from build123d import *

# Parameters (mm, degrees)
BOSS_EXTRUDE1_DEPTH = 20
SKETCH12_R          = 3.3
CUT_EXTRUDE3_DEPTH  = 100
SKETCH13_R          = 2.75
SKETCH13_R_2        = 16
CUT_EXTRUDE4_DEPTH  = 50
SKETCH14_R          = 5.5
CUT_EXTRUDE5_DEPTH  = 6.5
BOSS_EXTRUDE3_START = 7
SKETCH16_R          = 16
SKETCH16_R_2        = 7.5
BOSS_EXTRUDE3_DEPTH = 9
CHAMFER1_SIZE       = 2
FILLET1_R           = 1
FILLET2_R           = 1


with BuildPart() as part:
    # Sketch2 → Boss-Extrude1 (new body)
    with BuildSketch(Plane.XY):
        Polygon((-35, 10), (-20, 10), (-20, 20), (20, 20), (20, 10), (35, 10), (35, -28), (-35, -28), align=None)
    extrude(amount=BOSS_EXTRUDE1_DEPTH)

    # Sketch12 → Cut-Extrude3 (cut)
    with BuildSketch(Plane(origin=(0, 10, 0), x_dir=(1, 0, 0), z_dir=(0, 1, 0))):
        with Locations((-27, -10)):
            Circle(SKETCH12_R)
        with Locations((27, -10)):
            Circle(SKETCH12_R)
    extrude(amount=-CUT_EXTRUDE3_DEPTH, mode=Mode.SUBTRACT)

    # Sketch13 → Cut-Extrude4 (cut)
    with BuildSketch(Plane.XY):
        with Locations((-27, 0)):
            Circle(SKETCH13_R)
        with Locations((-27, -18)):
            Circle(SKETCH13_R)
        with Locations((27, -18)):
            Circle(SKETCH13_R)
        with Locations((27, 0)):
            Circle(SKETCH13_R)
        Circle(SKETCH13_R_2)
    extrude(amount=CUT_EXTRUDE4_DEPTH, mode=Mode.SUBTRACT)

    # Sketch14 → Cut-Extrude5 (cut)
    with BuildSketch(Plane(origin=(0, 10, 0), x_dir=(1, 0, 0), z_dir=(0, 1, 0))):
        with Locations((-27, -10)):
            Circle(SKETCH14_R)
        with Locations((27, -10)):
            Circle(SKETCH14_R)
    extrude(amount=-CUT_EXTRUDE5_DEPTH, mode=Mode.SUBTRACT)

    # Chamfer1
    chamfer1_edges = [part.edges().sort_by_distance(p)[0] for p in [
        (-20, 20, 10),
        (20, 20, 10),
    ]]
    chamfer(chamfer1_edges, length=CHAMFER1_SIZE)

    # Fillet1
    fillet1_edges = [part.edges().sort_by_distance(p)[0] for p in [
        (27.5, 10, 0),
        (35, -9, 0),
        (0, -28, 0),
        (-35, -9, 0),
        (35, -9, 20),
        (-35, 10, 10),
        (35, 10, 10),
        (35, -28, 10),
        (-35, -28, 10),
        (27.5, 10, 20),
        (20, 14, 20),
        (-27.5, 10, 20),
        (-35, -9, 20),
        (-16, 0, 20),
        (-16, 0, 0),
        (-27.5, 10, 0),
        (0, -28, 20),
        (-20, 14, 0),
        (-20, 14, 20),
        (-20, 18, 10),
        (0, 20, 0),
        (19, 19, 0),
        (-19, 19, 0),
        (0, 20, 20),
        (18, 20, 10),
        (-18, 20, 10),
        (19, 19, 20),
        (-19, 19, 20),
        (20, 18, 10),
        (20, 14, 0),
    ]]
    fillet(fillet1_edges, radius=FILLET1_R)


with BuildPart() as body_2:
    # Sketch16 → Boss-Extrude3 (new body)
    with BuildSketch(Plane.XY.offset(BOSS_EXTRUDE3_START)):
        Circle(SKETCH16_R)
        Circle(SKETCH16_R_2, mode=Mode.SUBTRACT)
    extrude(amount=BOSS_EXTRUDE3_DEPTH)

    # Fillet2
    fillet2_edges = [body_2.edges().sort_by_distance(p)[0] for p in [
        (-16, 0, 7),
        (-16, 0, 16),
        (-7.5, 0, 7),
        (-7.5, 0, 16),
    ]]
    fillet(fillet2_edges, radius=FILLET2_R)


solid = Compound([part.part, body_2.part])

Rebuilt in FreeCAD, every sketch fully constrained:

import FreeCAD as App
import Part
import Sketcher
Q = App.Units.Quantity


def edges_at(feature, points):
    """Names of the edges that pass closest to the given points."""
    edges = feature.Shape.Edges
    near = lambda p: min(range(len(edges)), key=lambda i: edges[i].distToShape(Part.Vertex(*p))[0])
    return sorted({f"Edge{near(p) + 1}" for p in points})


def add_polygon(sketch, points):
    """Adds a closed chain of lines whose ends are joined by coincident constraints."""
    first, n = sketch.GeometryCount, len(points)
    for a, b in zip(points, points[1:] + points[:1]):
        sketch.addGeometry(Part.LineSegment(App.Vector(*a, 0), App.Vector(*b, 0)), False)
    for i in range(n):
        sketch.addConstraint(Sketcher.Constraint("Coincident", first + i, 2, first + (i + 1) % n, 1))

doc = App.newDocument("Part")
params = doc.addObject("Spreadsheet::Sheet", "Params")
for row, (alias, value) in enumerate([
    ("sketch1_width", "15 mm"),
    ("sketch1_width2", "70 mm"),
    ("sketch1_height", "38 mm"),
    ("sketch1_height2", "10 mm"),
    ("pad1_length", "20 mm"),
    ("sketch2_diameter", "6.6 mm"),
    ("pocket1_length", "100 mm"),
    ("sketch3_diameter", "32 mm"),
    ("sketch3_diameter2", "5.5 mm"),
    ("pocket2_length", "50 mm"),
    ("sketch4_diameter", "11 mm"),
    ("pocket3_length", "6.5 mm"),
    ("chamfer_size", "2 mm"),
    ("fillet_radius", "1 mm"),
    ("sketch5_diameter", "32 mm"),
    ("sketch5_diameter2", "15 mm"),
    ("pad2_length", "9 mm"),
    ("fillet2_radius", "1 mm"),
], start=1):
    params.set(f"A{row}", alias)
    params.set(f"B{row}", "=" + value)
    params.setAlias(f"B{row}", alias)

body = doc.addObject("PartDesign::Body", "Body")

# Sketch on XY plane
sketch1 = body.newObject("Sketcher::SketchObject", "Sketch")
sketch1.AttachmentSupport = (doc.getObject("XY_Plane"), [""])
sketch1.MapMode = "FlatFace"
add_polygon(sketch1, [(-20, 10), (-35, 10), (-35, -28), (35, -28), (35, 10), (20, 10), (20, 20), (-20, 20)])  # lines 0-7
sketch1.addConstraint([
    Sketcher.Constraint("Horizontal", 0),
    Sketcher.Constraint("Vertical", 1),
    Sketcher.Constraint("Horizontal", 2),
    Sketcher.Constraint("Vertical", 3),
    Sketcher.Constraint("Horizontal", 4),
    Sketcher.Constraint("Vertical", 5),
    Sketcher.Constraint("Horizontal", 6),
    Sketcher.Constraint("Vertical", 7),
    Sketcher.Constraint("Symmetric", 0, 2, 3, 2, -2),
    Sketcher.Constraint("Equal", 0, 4),
    Sketcher.Constraint("DistanceX", 0, 2, 0, 1, Q("15 mm")),
    Sketcher.Constraint("DistanceX", 2, 1, 2, 2, Q("70 mm")),
    Sketcher.Constraint("DistanceY", 1, 2, 1, 1, Q("38 mm")),
    Sketcher.Constraint("DistanceY", 5, 1, 5, 2, Q("10 mm")),
    Sketcher.Constraint("DistanceY", -1, 1, 0, 2, Q("10 mm")),
])
sketch1.setExpression("Constraints[18]", "Params.sketch1_width")
sketch1.setExpression("Constraints[19]", "Params.sketch1_width2")
sketch1.setExpression("Constraints[20]", "Params.sketch1_height")
sketch1.setExpression("Constraints[21]", "Params.sketch1_height2")
pad1 = body.newObject("PartDesign::Pad", "Pad")
pad1.Profile = sketch1
pad1.setExpression("Length", "Params.pad1_length")

# Sketch on XZ plane
sketch2 = body.newObject("Sketcher::SketchObject", "Sketch001")
sketch2.AttachmentSupport = (doc.getObject("XZ_Plane"), [""])
sketch2.MapMode = "FlatFace"
sketch2.AttachmentOffset = App.Placement(App.Vector(0, 0, -10), App.Rotation())
sketch2.addGeometry([
    Part.Circle(App.Vector(-27, 10, 0), App.Vector(0, 0, 1), 3.3),
    Part.Circle(App.Vector(27, 10, 0), App.Vector(0, 0, 1), 3.3),
], False)
sketch2.addConstraint([
    Sketcher.Constraint("Equal", 0, 1),
    Sketcher.Constraint("Symmetric", 0, 3, 1, 3, -2),
    Sketcher.Constraint("Diameter", 0, Q("6.6 mm")),
    Sketcher.Constraint("DistanceX", 0, 3, -1, 1, Q("27 mm")),
    Sketcher.Constraint("DistanceY", -1, 1, 0, 3, Q("10 mm")),
])
sketch2.setExpression("Constraints[2]", "Params.sketch2_diameter")
pocket1 = body.newObject("PartDesign::Pocket", "Pocket")
pocket1.Profile = sketch2
pocket1.setExpression("Length", "Params.pocket1_length")
pocket1.Reversed = True

# Sketch on XY plane
sketch3 = body.newObject("Sketcher::SketchObject", "Sketch002")
sketch3.AttachmentSupport = (doc.getObject("XY_Plane"), [""])
sketch3.MapMode = "FlatFace"
sketch3.addGeometry([
    Part.Circle(App.Vector(-27, 0, 0), App.Vector(0, 0, 1), 2.75),  # 0
    Part.Circle(App.Vector(-27, -18, 0), App.Vector(0, 0, 1), 2.75),  # 1
    Part.Circle(App.Vector(27, -18, 0), App.Vector(0, 0, 1), 2.75),  # 2
    Part.Circle(App.Vector(27, 0, 0), App.Vector(0, 0, 1), 2.75),  # 3
    Part.Circle(App.Vector(0, 0, 0), App.Vector(0, 0, 1), 16),  # 4
], False)
sketch3.addConstraint([
    Sketcher.Constraint("Coincident", 4, 3, -1, 1),
    Sketcher.Constraint("Equal", 0, 1),
    Sketcher.Constraint("Equal", 1, 2),
    Sketcher.Constraint("Equal", 2, 3),
    Sketcher.Constraint("Symmetric", 0, 3, 3, 3, -1, 1),
    Sketcher.Constraint("Symmetric", 1, 3, 2, 3, -2),
    Sketcher.Constraint("PointOnObject", 0, 3, -1),
    Sketcher.Constraint("Vertical", 0, 3, 1, 3),
    Sketcher.Constraint("Diameter", 4, Q("32 mm")),
    Sketcher.Constraint("Diameter", 0, Q("5.5 mm")),
    Sketcher.Constraint("DistanceX", 0, 3, -1, 1, Q("27 mm")),
    Sketcher.Constraint("DistanceY", 1, 3, -1, 1, Q("18 mm")),
])
sketch3.setExpression("Constraints[8]", "Params.sketch3_diameter")
sketch3.setExpression("Constraints[9]", "Params.sketch3_diameter2")
pocket2 = body.newObject("PartDesign::Pocket", "Pocket001")
pocket2.Profile = sketch3
pocket2.setExpression("Length", "Params.pocket2_length")
pocket2.Reversed = True

# Sketch on XZ plane
sketch4 = body.newObject("Sketcher::SketchObject", "Sketch003")
sketch4.AttachmentSupport = (doc.getObject("XZ_Plane"), [""])
sketch4.MapMode = "FlatFace"
sketch4.AttachmentOffset = App.Placement(App.Vector(0, 0, -10), App.Rotation())
sketch4.addGeometry([
    Part.Circle(App.Vector(-27, 10, 0), App.Vector(0, 0, 1), 5.5),
    Part.Circle(App.Vector(27, 10, 0), App.Vector(0, 0, 1), 5.5),
], False)
sketch4.addConstraint([
    Sketcher.Constraint("Equal", 0, 1),
    Sketcher.Constraint("Symmetric", 0, 3, 1, 3, -2),
    Sketcher.Constraint("Diameter", 0, Q("11 mm")),
    Sketcher.Constraint("DistanceX", 0, 3, -1, 1, Q("27 mm")),
    Sketcher.Constraint("DistanceY", -1, 1, 0, 3, Q("10 mm")),
])
sketch4.setExpression("Constraints[2]", "Params.sketch4_diameter")
pocket3 = body.newObject("PartDesign::Pocket", "Pocket002")
pocket3.Profile = sketch4
pocket3.setExpression("Length", "Params.pocket3_length")
pocket3.Reversed = True
doc.recompute()

chamfer = body.newObject("PartDesign::Chamfer", "Chamfer")
chamfer.Base = (pocket3, edges_at(pocket3, [(-20, 20, 10), (20, 20, 10)]))
chamfer.setExpression("Size", "Params.chamfer_size")
doc.recompute()

fillet = body.newObject("PartDesign::Fillet", "Fillet")
fillet.Base = (chamfer, edges_at(chamfer, [
    (27.5, 10, 0),
    (35, -9, 0),
    (0, -28, 0),
    (-35, -9, 0),
    (35, -9, 20),
    (-35, 10, 10),
    (35, 10, 10),
    (35, -28, 10),
    (-35, -28, 10),
    (27.5, 10, 20),
    (20, 14, 20),
    (-27.5, 10, 20),
    (-35, -9, 20),
    (-16, 0, 20),
    (-16, 0, 0),
    (-27.5, 10, 0),
    (0, -28, 20),
    (-20, 14, 0),
    (-20, 14, 20),
    (-20, 18, 10),
    (0, 20, 0),
    (19, 19, 0),
    (-19, 19, 0),
    (0, 20, 20),
    (18, 20, 10),
    (-18, 20, 10),
    (19, 19, 20),
    (-19, 19, 20),
    (20, 18, 10),
    (20, 14, 0),
]))
fillet.setExpression("Radius", "Params.fillet_radius")
body2 = doc.addObject("PartDesign::Body", "Body001")

# Sketch on XY plane
sketch5 = body2.newObject("Sketcher::SketchObject", "Sketch004")
sketch5.AttachmentSupport = (doc.getObject("XY_Plane001"), [""])
sketch5.MapMode = "FlatFace"
sketch5.AttachmentOffset = App.Placement(App.Vector(0, 0, 7), App.Rotation())
sketch5.addGeometry([
    Part.Circle(App.Vector(0, 0, 0), App.Vector(0, 0, 1), 16),
    Part.Circle(App.Vector(0, 0, 0), App.Vector(0, 0, 1), 7.5),
], False)
sketch5.addConstraint([
    Sketcher.Constraint("Coincident", 0, 3, -1, 1),
    Sketcher.Constraint("Coincident", 1, 3, -1, 1),
    Sketcher.Constraint("Diameter", 0, Q("32 mm")),
    Sketcher.Constraint("Diameter", 1, Q("15 mm")),
])
sketch5.setExpression("Constraints[2]", "Params.sketch5_diameter")
sketch5.setExpression("Constraints[3]", "Params.sketch5_diameter2")
pad2 = body2.newObject("PartDesign::Pad", "Pad001")
pad2.Profile = sketch5
pad2.setExpression("Length", "Params.pad2_length")
doc.recompute()

fillet2 = body2.newObject("PartDesign::Fillet", "Fillet001")
fillet2.Base = (pad2, edges_at(pad2, [
    (-16, 0, 7),
    (-16, 0, 16),
    (-7.5, 0, 7),
    (-7.5, 0, 16),
]))
fillet2.setExpression("Radius", "Params.fillet2_radius")

doc.recompute()
